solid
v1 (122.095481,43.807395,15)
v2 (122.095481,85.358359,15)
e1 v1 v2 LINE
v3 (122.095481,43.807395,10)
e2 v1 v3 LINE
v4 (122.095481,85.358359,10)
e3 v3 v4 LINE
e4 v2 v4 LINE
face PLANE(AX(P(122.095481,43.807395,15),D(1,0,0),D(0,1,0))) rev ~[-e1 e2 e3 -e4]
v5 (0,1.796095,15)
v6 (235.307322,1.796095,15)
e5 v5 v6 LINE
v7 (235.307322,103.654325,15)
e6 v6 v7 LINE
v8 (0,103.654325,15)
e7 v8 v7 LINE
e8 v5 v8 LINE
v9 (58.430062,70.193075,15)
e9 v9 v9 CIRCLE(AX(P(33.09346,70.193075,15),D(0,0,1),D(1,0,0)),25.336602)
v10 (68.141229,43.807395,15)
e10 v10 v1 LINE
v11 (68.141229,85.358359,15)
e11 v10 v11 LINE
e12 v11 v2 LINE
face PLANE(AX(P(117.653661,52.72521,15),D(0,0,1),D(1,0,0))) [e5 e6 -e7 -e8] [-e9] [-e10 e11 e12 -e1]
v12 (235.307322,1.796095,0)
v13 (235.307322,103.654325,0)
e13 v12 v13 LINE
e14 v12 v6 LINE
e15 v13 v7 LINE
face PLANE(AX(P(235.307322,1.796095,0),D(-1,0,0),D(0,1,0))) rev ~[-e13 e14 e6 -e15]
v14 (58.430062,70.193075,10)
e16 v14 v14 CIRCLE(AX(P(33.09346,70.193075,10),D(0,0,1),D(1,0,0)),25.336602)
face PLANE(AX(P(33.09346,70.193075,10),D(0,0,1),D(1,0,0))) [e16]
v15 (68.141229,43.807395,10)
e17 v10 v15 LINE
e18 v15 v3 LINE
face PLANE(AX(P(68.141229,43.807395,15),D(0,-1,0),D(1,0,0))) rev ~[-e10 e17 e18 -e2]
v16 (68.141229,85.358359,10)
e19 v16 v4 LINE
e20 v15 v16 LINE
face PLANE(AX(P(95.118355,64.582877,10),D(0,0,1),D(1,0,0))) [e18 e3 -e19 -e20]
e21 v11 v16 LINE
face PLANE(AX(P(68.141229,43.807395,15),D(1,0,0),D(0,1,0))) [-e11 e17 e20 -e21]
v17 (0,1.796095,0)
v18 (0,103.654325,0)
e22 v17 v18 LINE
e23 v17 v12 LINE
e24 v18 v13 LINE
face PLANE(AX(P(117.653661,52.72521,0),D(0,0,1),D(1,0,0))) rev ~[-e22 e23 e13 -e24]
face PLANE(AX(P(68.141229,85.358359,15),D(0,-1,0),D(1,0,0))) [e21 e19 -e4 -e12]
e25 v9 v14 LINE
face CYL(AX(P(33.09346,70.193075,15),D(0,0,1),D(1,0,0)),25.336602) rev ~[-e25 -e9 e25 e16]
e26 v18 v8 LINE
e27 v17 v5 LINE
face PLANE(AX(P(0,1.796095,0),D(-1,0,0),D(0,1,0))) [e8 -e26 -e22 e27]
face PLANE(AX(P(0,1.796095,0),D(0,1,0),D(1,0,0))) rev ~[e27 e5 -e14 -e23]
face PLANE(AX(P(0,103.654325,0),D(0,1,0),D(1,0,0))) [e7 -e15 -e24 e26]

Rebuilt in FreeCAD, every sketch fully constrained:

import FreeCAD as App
import Part
import Sketcher

doc = App.newDocument("Part")
body = doc.addObject("PartDesign::Body", "Body")

# Sketch on XY plane
sketch1 = body.newObject("Sketcher::SketchObject", "Sketch")
sketch1.AttachmentSupport = (doc.getObject("XY_Plane"), [""])
sketch1.MapMode = "FlatFace"
sketch1.addGeometry([
    Part.LineSegment(App.Vector(0, 104, 0), App.Vector(0, 2, 0)),
    Part.LineSegment(App.Vector(0, 2, 0), App.Vector(235, 2, 0)),
    Part.LineSegment(App.Vector(235, 2, 0), App.Vector(235, 104, 0)),
    Part.LineSegment(App.Vector(235, 104, 0), App.Vector(0, 104, 0)),
], False)
sketch1.addConstraint([
    Sketcher.Constraint("Coincident", 0, 2, 1, 1),
    Sketcher.Constraint("Coincident", 1, 2, 2, 1),
    Sketcher.Constraint("Coincident", 2, 2, 3, 1),
    Sketcher.Constraint("Coincident", 3, 2, 0, 1),
    Sketcher.Constraint("Vertical", 0),
    Sketcher.Constraint("Horizontal", 1),
    Sketcher.Constraint("Vertical", 2),
    Sketcher.Constraint("Horizontal", 3),
    Sketcher.Constraint("PointOnObject", 0, 2, -2),
    Sketcher.Constraint("DistanceX", 1, 1, 1, 2, 235.307321),
    Sketcher.Constraint("DistanceY", 0, 2, 0, 1, 101.85823),
    Sketcher.Constraint("DistanceY", -1, 1, 0, 2, 1.796095),
])
pad1 = body.newObject("PartDesign::Pad", "Pad")
pad1.Profile = sketch1
pad1.Length = 15

# Sketch on XY plane
sketch2 = body.newObject("Sketcher::SketchObject", "Sketch001")
sketch2.AttachmentSupport = (doc.getObject("XY_Plane"), [""])
sketch2.MapMode = "FlatFace"
sketch2.AttachmentOffset = App.Placement(App.Vector(0, 0, 15), App.Rotation())
sketch2.addGeometry(Part.Circle(App.Vector(33, 70, 0), App.Vector(0, 0, 1), 25), False)
sketch2.addConstraint([
    Sketcher.Constraint("Diameter", 0, 50.673204),
    Sketcher.Constraint("DistanceX", -1, 1, 0, 3, 33.09346),
    Sketcher.Constraint("DistanceY", -1, 1, 0, 3, 70.193075),
])
pocket1 = body.newObject("PartDesign::Pocket", "Pocket")
pocket1.Profile = sketch2
pocket1.Length = 5

# Sketch on XY plane
sketch3 = body.newObject("Sketcher::SketchObject", "Sketch002")
sketch3.AttachmentSupport = (doc.getObject("XY_Plane"), [""])
sketch3.MapMode = "FlatFace"
sketch3.AttachmentOffset = App.Placement(App.Vector(0, 0, 15), App.Rotation())
sketch3.addGeometry([
    Part.LineSegment(App.Vector(68, 85, 0), App.Vector(68, 44, 0)),
    Part.LineSegment(App.Vector(68, 44, 0), App.Vector(122, 44, 0)),
    Part.LineSegment(App.Vector(122, 44, 0), App.Vector(122, 85, 0)),
    Part.LineSegment(App.Vector(122, 85, 0), App.Vector(68, 85, 0)),
], False)
sketch3.addConstraint([
    Sketcher.Constraint("Coincident", 0, 2, 1, 1),
    Sketcher.Constraint("Coincident", 1, 2, 2, 1),
    Sketcher.Constraint("Coincident", 2, 2, 3, 1),
    Sketcher.Constraint("Coincident", 3, 2, 0, 1),
    Sketcher.Constraint("Vertical", 0),
    Sketcher.Constraint("Horizontal", 1),
    Sketcher.Constraint("Vertical", 2),
    Sketcher.Constraint("Horizontal", 3),
    Sketcher.Constraint("DistanceX", 1, 1, 1, 2, 53.954252),
    Sketcher.Constraint("DistanceY", 0, 2, 0, 1, 41.550964),
    Sketcher.Constraint("DistanceX", -1, 1, 0, 2, 68.141229),
    Sketcher.Constraint("DistanceY", -1, 1, 2, 2, 85.358359),
])
pocket2 = body.newObject("PartDesign::Pocket", "Pocket001")
pocket2.Profile = sketch3
pocket2.Length = 5

doc.recompute()
